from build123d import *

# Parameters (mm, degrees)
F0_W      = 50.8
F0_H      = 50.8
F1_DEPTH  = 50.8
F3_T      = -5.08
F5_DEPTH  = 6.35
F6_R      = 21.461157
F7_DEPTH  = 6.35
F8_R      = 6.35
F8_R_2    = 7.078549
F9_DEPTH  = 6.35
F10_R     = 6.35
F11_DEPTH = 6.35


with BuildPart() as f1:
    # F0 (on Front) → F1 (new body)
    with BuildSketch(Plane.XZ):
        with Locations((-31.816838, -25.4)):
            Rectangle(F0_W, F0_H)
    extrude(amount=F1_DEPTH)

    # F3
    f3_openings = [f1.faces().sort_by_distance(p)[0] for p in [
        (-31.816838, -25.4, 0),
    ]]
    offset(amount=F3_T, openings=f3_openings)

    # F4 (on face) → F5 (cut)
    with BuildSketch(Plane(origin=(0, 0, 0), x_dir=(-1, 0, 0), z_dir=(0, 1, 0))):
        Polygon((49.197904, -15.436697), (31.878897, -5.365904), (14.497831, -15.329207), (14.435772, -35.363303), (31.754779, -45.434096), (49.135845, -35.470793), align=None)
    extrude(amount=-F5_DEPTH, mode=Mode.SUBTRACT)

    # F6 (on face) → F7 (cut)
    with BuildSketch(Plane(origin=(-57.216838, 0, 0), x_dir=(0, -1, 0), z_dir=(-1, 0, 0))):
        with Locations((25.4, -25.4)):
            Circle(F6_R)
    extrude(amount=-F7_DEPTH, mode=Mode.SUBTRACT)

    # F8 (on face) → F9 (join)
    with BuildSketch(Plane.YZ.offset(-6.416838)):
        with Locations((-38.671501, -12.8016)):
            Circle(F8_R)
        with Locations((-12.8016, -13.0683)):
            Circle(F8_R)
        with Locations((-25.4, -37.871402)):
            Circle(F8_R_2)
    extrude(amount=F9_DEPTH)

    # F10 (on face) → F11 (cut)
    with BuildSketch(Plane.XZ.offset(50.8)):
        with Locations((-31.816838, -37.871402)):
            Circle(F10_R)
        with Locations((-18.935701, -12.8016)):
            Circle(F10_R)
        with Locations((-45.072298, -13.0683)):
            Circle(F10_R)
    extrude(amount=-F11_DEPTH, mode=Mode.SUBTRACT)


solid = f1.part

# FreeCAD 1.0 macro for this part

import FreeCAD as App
import Part
import Sketcher

V = App.Vector
Q = App.Units.Quantity


def faces_at(feature, points):
    """Names of the faces that lie closest to the given points."""
    faces = feature.Shape.Faces
    near = lambda p: min(range(len(faces)), key=lambda i: faces[i].distToShape(Part.Vertex(*p))[0])
    return sorted({f"Face{near(p) + 1}" for p in points})

doc = App.newDocument("Part")
body = doc.addObject("PartDesign::Body", "Body")

# Sketch on XZ plane
sketch1 = doc.addObject("Sketcher::SketchObject", "Sketch")
body.addObject(sketch1)
sketch1.AttachmentSupport = (doc.XZ_Plane, [""])
sketch1.MapMode = "FlatFace"
sketch1.addGeometry([
    Part.LineSegment(V(-57, 0, 0), V(-57, -51, 0)),
    Part.LineSegment(V(-57, -51, 0), V(-6, -51, 0)),
    Part.LineSegment(V(-6, -51, 0), V(-6, 0, 0)),
    Part.LineSegment(V(-6, 0, 0), V(-57, 0, 0)),
], False)
sketch1.addConstraint([
    Sketcher.Constraint("Coincident", 0, 2, 1, 1),
    Sketcher.Constraint("Coincident", 1, 2, 2, 1),
    Sketcher.Constraint("Coincident", 2, 2, 3, 1),
    Sketcher.Constraint("Coincident", 3, 2, 0, 1),
    Sketcher.Constraint("Vertical", 0),
    Sketcher.Constraint("Horizontal", 1),
    Sketcher.Constraint("Vertical", 2),
    Sketcher.Constraint("Horizontal", 3),
    Sketcher.Constraint("PointOnObject", 2, 2, -1),
    Sketcher.Constraint("Equal", 3, 0),
    Sketcher.Constraint("DistanceX", 1, 1, 1, 2, Q("2 in")),
    Sketcher.Constraint("DistanceX", 0, 2, -1, 1, 57.216838),
])
pad1 = doc.addObject("PartDesign::Pad", "Pad")
body.addObject(pad1)
pad1.Profile = sketch1
pad1.Length = Q("2 in")
doc.recompute()

thickness = doc.addObject("PartDesign::Thickness", "Thickness")
body.addObject(thickness)
thickness.Base = (pad1, faces_at(pad1, [(-31.817, -25.4, 0)]))
thickness.Value = Q("0.2 in")
thickness.Reversed = True
thickness.Join = "Arc"

# Sketch on XZ plane
sketch2 = doc.addObject("Sketcher::SketchObject", "Sketch001")
body.addObject(sketch2)
sketch2.AttachmentSupport = (doc.XZ_Plane, [""])
sketch2.MapMode = "FlatFace"
sketch2.addGeometry([
    Part.LineSegment(V(-49, -15, 0), V(-32, -5, 0)),  # 0
    Part.LineSegment(V(-32, -5, 0), V(-14, -15, 0)),  # 1
    Part.LineSegment(V(-14, -15, 0), V(-14, -35, 0)),  # 2
    Part.LineSegment(V(-14, -35, 0), V(-32, -45, 0)),  # 3
    Part.LineSegment(V(-32, -45, 0), V(-49, -35, 0)),  # 4
    Part.LineSegment(V(-49, -35, 0), V(-49, -15, 0)),  # 5
], False)
sketch2.addConstraint([
    Sketcher.Constraint("Coincident", 0, 2, 1, 1),
    Sketcher.Constraint("Coincident", 1, 2, 2, 1),
    Sketcher.Constraint("Coincident", 2, 2, 3, 1),
    Sketcher.Constraint("Coincident", 3, 2, 4, 1),
    Sketcher.Constraint("Coincident", 4, 2, 5, 1),
    Sketcher.Constraint("Coincident", 5, 2, 0, 1),
    Sketcher.Constraint("Parallel", 0, 3),
    Sketcher.Constraint("Parallel", 1, 4),
    Sketcher.Constraint("Parallel", 2, 5),
    Sketcher.Constraint("Equal", 0, 1),
    Sketcher.Constraint("Equal", 1, 2),
    Sketcher.Constraint("Equal", 2, 3),
    Sketcher.Constraint("DistanceY", 2, 2, 0, 2, Q("1.181 in")),
    Sketcher.Constraint("DistanceX", 1, 2, -1, 1, 14.497831),
    Sketcher.Constraint("DistanceX", 3, 2, -1, 1, 31.754779),
    Sketcher.Constraint("DistanceX", 1, 2, 2, 2, 0.062059),
    Sketcher.Constraint("DistanceY", 3, 2, 1, 2, 30.104889),
    Sketcher.Constraint("DistanceY", 0, 2, -1, 1, 5.365904),
])
pocket1 = doc.addObject("PartDesign::Pocket", "Pocket")
body.addObject(pocket1)
pocket1.Profile = sketch2
pocket1.Length = Q("0.25 in")
pocket1.Reversed = True

# Sketch on YZ plane
sketch3 = doc.addObject("Sketcher::SketchObject", "Sketch002")
body.addObject(sketch3)
sketch3.AttachmentSupport = (doc.YZ_Plane, [""])
sketch3.MapMode = "FlatFace"
sketch3.AttachmentOffset = App.Placement(V(0, 0, -57.216838), App.Rotation())
sketch3.addGeometry(Part.Circle(V(-25, -25, 0), V(0, 0, 1), 21), False)
sketch3.addConstraint([
    Sketcher.Constraint("DistanceX", 0, 3, -1, 1, Q("1 in")),
    Sketcher.Constraint("DistanceY", 0, 3, -1, 1, Q("1 in")),
    Sketcher.Constraint("Diameter", 0, 42.922314),
])
pocket2 = doc.addObject("PartDesign::Pocket", "Pocket001")
body.addObject(pocket2)
pocket2.Profile = sketch3
pocket2.Length = Q("0.25 in")
pocket2.Reversed = True

# Sketch on YZ plane
sketch4 = doc.addObject("Sketcher::SketchObject", "Sketch003")
body.addObject(sketch4)
sketch4.AttachmentSupport = (doc.YZ_Plane, [""])
sketch4.MapMode = "FlatFace"
sketch4.AttachmentOffset = App.Placement(V(0, 0, -6.416838), App.Rotation())
sketch4.addGeometry([
    Part.Circle(V(-39, -13, 0), V(0, 0, 1), 6),
    Part.Circle(V(-13, -13, 0), V(0, 0, 1), 6),
    Part.Circle(V(-25, -38, 0), V(0, 0, 1), 7),
], False)
sketch4.addConstraint([
    Sketcher.Constraint("Equal", 0, 1),
    Sketcher.Constraint("Diameter", 0, Q("0.5 in")),
    Sketcher.Constraint("DistanceX", 2, 3, -1, 1, Q("1 in")),
    Sketcher.Constraint("DistanceY", 0, 3, -1, 1, Q("0.504 in")),
    Sketcher.Constraint("DistanceX", 1, 3, -1, 1, Q("0.504 in")),
    Sketcher.Constraint("DistanceY", 2, 3, -1, 1, Q("1.4910001 in")),
    Sketcher.Constraint("Diameter", 2, 14.157098),
    Sketcher.Constraint("DistanceX", 0, 3, -1, 1, Q("1.5225 in")),
    Sketcher.Constraint("DistanceY", 1, 3, -1, 1, Q("0.5145 in")),
])
pad2 = doc.addObject("PartDesign::Pad", "Pad001")
body.addObject(pad2)
pad2.Profile = sketch4
pad2.Length = Q("0.25 in")

# Sketch on XZ plane
sketch5 = doc.addObject("Sketcher::SketchObject", "Sketch004")
body.addObject(sketch5)
sketch5.AttachmentSupport = (doc.XZ_Plane, [""])
sketch5.MapMode = "FlatFace"
sketch5.AttachmentOffset = App.Placement(V(0, 0, 2 * 25.4), App.Rotation())
sketch5.addGeometry([
    Part.Circle(V(-32, -38, 0), V(0, 0, 1), 6),
    Part.Circle(V(-19, -13, 0), V(0, 0, 1), 6),
    Part.Circle(V(-45, -13, 0), V(0, 0, 1), 6),
], False)
sketch5.addConstraint([
    Sketcher.Constraint("Equal", 0, 1),
    Sketcher.Constraint("Equal", 1, 2),
    Sketcher.Constraint("Diameter", 0, Q("0.5 in")),
    Sketcher.Constraint("DistanceY", 0, 3, -1, 1, Q("1.4910001 in")),
    Sketcher.Constraint("DistanceY", 1, 3, -1, 1, Q("0.504 in")),
    Sketcher.Constraint("DistanceX", 2, 3, 1, 3, Q("1.0289999 in")),
    Sketcher.Constraint("DistanceX", 1, 3, -1, 1, Q("0.7455 in")),
    Sketcher.Constraint("DistanceY", 2, 3, -1, 1, Q("0.5145 in")),
    Sketcher.Constraint("DistanceX", 0, 3, -1, 1, 31.816838),
])
pocket3 = doc.addObject("PartDesign::Pocket", "Pocket002")
body.addObject(pocket3)
pocket3.Profile = sketch5
pocket3.Length = Q("0.25 in")

doc.recompute()
